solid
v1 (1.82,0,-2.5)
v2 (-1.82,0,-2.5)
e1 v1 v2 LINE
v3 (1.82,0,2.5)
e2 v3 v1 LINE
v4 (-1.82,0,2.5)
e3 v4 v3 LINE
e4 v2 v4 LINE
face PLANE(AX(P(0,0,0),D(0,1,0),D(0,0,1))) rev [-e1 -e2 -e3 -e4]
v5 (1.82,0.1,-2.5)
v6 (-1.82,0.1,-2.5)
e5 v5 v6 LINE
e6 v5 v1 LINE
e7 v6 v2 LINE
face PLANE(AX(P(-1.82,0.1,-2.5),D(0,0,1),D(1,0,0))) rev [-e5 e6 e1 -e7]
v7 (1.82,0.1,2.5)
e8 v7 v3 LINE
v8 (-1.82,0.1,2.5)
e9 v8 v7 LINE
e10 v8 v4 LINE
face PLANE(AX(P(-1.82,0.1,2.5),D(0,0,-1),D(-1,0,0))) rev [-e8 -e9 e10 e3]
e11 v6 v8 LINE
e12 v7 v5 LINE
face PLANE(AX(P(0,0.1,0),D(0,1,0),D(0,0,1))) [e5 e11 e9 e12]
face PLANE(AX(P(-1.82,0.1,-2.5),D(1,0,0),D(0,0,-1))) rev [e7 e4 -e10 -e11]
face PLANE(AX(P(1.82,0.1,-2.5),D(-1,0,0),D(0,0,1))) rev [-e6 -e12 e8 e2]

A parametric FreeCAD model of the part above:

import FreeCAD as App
import Part
import Sketcher
from FreeCAD import Vector
Q = App.Units.Quantity

doc = App.newDocument("Part")
params = doc.addObject("Spreadsheet::Sheet", "Params")
for row, (alias, value) in enumerate([
    ("sketch1_height", "5 mm"),
    ("sketch1_width", "3.64 mm"),
    ("pad1_length", "0.1 mm"),
], start=1):
    params.set(f"A{row}", alias)
    params.set(f"B{row}", "=" + value)
    params.setAlias(f"B{row}", alias)

body = doc.addObject("PartDesign::Body", "Body")

sketch1 = doc.addObject("Sketcher::SketchObject", "Sketch")
body.addObject(sketch1)
sketch1.AttachmentSupport = (doc.XZ_Plane, [""])
sketch1.MapMode = "FlatFace"
sketch1.addGeometry([
    Part.LineSegment(Vector(-1.82, -2.5, 0), Vector(-1.82, 2.5, 0)),
    Part.LineSegment(Vector(-1.82, 2.5, 0), Vector(1.82, 2.5, 0)),
    Part.LineSegment(Vector(1.82, 2.5, 0), Vector(1.82, -2.5, 0)),
    Part.LineSegment(Vector(1.82, -2.5, 0), Vector(-1.82, -2.5, 0)),
], False)
sketch1.addConstraint([
    Sketcher.Constraint("Coincident", 0, 2, 1, 1),
    Sketcher.Constraint("Coincident", 1, 2, 2, 1),
    Sketcher.Constraint("Coincident", 2, 2, 3, 1),
    Sketcher.Constraint("Coincident", 3, 2, 0, 1),
    Sketcher.Constraint("Vertical", 0),
    Sketcher.Constraint("Horizontal", 1),
    Sketcher.Constraint("Vertical", 2),
    Sketcher.Constraint("Horizontal", 3),
    Sketcher.Constraint("Symmetric", 0, 2, 2, 2, -1, 1),
    Sketcher.Constraint("DistanceY", 0, 1, 0, 2, Q("5 mm")),
    Sketcher.Constraint("DistanceX", 1, 1, 1, 2, Q("3.64 mm")),
])
sketch1.setExpression("Constraints[9]", "Params.sketch1_height")
sketch1.setExpression("Constraints[10]", "Params.sketch1_width")
pad1 = doc.addObject("PartDesign::Pad", "Pad")
body.addObject(pad1)
pad1.Profile = sketch1
pad1.setExpression("Length", "Params.pad1_length")
pad1.Reversed = True

doc.recompute()
